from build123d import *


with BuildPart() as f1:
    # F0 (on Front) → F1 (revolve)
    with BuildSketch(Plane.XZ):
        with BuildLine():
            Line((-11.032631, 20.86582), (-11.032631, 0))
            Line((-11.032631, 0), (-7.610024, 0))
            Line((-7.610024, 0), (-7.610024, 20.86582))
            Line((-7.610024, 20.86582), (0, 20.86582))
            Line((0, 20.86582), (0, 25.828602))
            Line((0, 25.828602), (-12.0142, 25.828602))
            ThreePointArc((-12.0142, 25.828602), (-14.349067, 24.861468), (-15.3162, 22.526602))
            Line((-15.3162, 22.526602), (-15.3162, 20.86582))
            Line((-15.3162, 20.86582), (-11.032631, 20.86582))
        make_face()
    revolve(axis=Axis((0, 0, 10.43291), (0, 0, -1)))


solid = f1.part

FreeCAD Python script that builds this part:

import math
import FreeCAD as App
import Part
import Sketcher
Q = App.Units.Quantity

doc = App.newDocument("Part")
body = doc.addObject("PartDesign::Body", "Body")

# Sketch on XZ plane
sketch1 = body.newObject("Sketcher::SketchObject", "Sketch")
sketch1.AttachmentSupport = (doc.getObject("XZ_Plane"), [""])
sketch1.MapMode = "FlatFace"
sketch1.addGeometry([
    Part.LineSegment(App.Vector(-11, 20.9, 0), App.Vector(-11, 0, 0)),  # 0
    Part.LineSegment(App.Vector(-11, 0, 0), App.Vector(-7.6, 0, 0)),  # 1
    Part.LineSegment(App.Vector(-7.6, 0, 0), App.Vector(-7.6, 20.9, 0)),  # 2
    Part.LineSegment(App.Vector(-7.6, 20.9, 0), App.Vector(0, 20.9, 0)),  # 3
    Part.LineSegment(App.Vector(0, 20.9, 0), App.Vector(0, 25.8, 0)),  # 4
    Part.LineSegment(App.Vector(0, 25.8, 0), App.Vector(-12, 25.8, 0)),  # 5
    Part.ArcOfCircle(Part.Circle(App.Vector(-12, 22.5, 0), App.Vector(0, 0, 1), 3.3), math.radians(90), math.radians(180)),  # 6
    Part.LineSegment(App.Vector(-15.3, 22.5, 0), App.Vector(-15.3, 20.9, 0)),  # 7
    Part.LineSegment(App.Vector(-15.3, 20.9, 0), App.Vector(-11, 20.9, 0)),  # 8
], False)
sketch1.addConstraint([
    Sketcher.Constraint("Coincident", 0, 2, 1, 1),
    Sketcher.Constraint("Coincident", 1, 2, 2, 1),
    Sketcher.Constraint("Coincident", 2, 2, 3, 1),
    Sketcher.Constraint("Coincident", 3, 2, 4, 1),
    Sketcher.Constraint("Coincident", 4, 2, 5, 1),
    Sketcher.Constraint("Tangent", 5, 2, 6, 1),
    Sketcher.Constraint("Tangent", 6, 2, 7, 1),
    Sketcher.Constraint("Coincident", 7, 2, 8, 1),
    Sketcher.Constraint("Coincident", 8, 2, 0, 1),
    Sketcher.Constraint("Vertical", 0),
    Sketcher.Constraint("Horizontal", 1),
    Sketcher.Constraint("Vertical", 2),
    Sketcher.Constraint("Horizontal", 3),
    Sketcher.Constraint("Vertical", 4),
    Sketcher.Constraint("Horizontal", 5),
    Sketcher.Constraint("Vertical", 7),
    Sketcher.Constraint("Horizontal", 8),
    Sketcher.Constraint("PointOnObject", 0, 2, -1),
    Sketcher.Constraint("PointOnObject", 3, 2, -2),
    Sketcher.Constraint("Horizontal", 3, 2, 7, 2),
    Sketcher.Constraint("Radius", 6, Q("0.13 in")),
    Sketcher.Constraint("DistanceX", 5, 2, 5, 1, Q("0.473 in")),
    Sketcher.Constraint("DistanceX", 8, 1, 8, 2, 4.283569),
    Sketcher.Constraint("DistanceY", 0, 2, 0, 1, 20.86582),
    Sketcher.Constraint("DistanceY", -1, 1, 6, 3, 22.526602),
    Sketcher.Constraint("DistanceX", 1, 1, 1, 2, 3.422607),
])
revolution = body.newObject("PartDesign::Revolution", "Revolution")
revolution.Profile = sketch1
revolution.ReferenceAxis = (sketch1, ["V_Axis"])
revolution.Angle = 360

doc.recompute()
